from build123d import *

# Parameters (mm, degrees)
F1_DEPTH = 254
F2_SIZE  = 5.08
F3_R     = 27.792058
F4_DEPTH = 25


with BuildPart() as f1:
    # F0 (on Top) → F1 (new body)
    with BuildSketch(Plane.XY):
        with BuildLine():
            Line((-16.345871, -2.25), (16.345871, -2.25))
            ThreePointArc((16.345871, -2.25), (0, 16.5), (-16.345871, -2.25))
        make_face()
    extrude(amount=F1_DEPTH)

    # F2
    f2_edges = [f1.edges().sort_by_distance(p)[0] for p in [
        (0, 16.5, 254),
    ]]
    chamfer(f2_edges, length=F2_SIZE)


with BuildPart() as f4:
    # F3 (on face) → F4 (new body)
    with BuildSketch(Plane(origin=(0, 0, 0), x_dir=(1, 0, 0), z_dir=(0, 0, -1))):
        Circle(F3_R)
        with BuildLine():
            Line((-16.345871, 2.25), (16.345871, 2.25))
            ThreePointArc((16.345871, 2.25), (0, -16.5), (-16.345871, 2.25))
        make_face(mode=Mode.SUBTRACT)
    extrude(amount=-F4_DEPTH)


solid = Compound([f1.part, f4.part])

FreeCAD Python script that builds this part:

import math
import FreeCAD as App
import Part
import Sketcher


def edges_at(feature, points):
    """Names of the edges that pass closest to the given points."""
    edges = feature.Shape.Edges
    near = lambda p: min(range(len(edges)), key=lambda i: edges[i].distToShape(Part.Vertex(*p))[0])
    return sorted({f"Edge{near(p) + 1}" for p in points})

doc = App.newDocument("Part")
body = doc.addObject("PartDesign::Body", "Body")

# Sketch on XY plane
sketch1 = body.newObject("Sketcher::SketchObject", "Sketch")
sketch1.AttachmentSupport = (doc.getObject("XY_Plane"), [""])
sketch1.MapMode = "FlatFace"
sketch1.addGeometry([
    Part.LineSegment(App.Vector(-16, -2, 0), App.Vector(16, -2, 0)),
    Part.ArcOfCircle(Part.Circle(App.Vector(0, 0, 0), App.Vector(0, 0, 1), 16), math.radians(-8), math.radians(188)),
], False)
sketch1.addConstraint([
    Sketcher.Constraint("Coincident", 0, 1, 1, 2),
    Sketcher.Constraint("Coincident", 1, 1, 0, 2),
    Sketcher.Constraint("Horizontal", 0),
    Sketcher.Constraint("Coincident", 1, 3, -1, 1),
    Sketcher.Constraint("Radius", 1, 16.5),
    Sketcher.Constraint("DistanceY", 0, 1, -1, 1, 2.25),
])
pad1 = body.newObject("PartDesign::Pad", "Pad")
pad1.Profile = sketch1
pad1.Length = 254
doc.recompute()

chamfer = body.newObject("PartDesign::Chamfer", "Chamfer")
chamfer.Base = (pad1, edges_at(pad1, [(0, 16.5, 254)]))
chamfer.Size = 5.08
body2 = doc.addObject("PartDesign::Body", "Body001")

# Sketch on XY plane
sketch2 = body2.newObject("Sketcher::SketchObject", "Sketch001")
sketch2.AttachmentSupport = (doc.getObject("XY_Plane001"), [""])
sketch2.MapMode = "FlatFace"
sketch2.addGeometry([
    Part.Circle(App.Vector(0, 0, 0), App.Vector(0, 0, 1), 28),
    Part.ArcOfCircle(Part.Circle(App.Vector(0, 0, 0), App.Vector(0, 0, 1), 16), math.radians(-8), math.radians(188)),
    Part.LineSegment(App.Vector(-16, -2, 0), App.Vector(16, -2, 0)),
], False)
sketch2.addConstraint([
    Sketcher.Constraint("Coincident", 1, 1, 2, 2),
    Sketcher.Constraint("Coincident", 2, 1, 1, 2),
    Sketcher.Constraint("Horizontal", 2),
    Sketcher.Constraint("Coincident", 0, 3, -1, 1),
    Sketcher.Constraint("Coincident", 1, 3, -1, 1),
    Sketcher.Constraint("Radius", 1, 16.5),
    Sketcher.Constraint("DistanceY", 1, 1, -1, 1, 2.25),
    Sketcher.Constraint("Diameter", 0, 55.584116),
])
pad2 = body2.newObject("PartDesign::Pad", "Pad001")
pad2.Profile = sketch2
pad2.Length = 25

doc.recompute()
